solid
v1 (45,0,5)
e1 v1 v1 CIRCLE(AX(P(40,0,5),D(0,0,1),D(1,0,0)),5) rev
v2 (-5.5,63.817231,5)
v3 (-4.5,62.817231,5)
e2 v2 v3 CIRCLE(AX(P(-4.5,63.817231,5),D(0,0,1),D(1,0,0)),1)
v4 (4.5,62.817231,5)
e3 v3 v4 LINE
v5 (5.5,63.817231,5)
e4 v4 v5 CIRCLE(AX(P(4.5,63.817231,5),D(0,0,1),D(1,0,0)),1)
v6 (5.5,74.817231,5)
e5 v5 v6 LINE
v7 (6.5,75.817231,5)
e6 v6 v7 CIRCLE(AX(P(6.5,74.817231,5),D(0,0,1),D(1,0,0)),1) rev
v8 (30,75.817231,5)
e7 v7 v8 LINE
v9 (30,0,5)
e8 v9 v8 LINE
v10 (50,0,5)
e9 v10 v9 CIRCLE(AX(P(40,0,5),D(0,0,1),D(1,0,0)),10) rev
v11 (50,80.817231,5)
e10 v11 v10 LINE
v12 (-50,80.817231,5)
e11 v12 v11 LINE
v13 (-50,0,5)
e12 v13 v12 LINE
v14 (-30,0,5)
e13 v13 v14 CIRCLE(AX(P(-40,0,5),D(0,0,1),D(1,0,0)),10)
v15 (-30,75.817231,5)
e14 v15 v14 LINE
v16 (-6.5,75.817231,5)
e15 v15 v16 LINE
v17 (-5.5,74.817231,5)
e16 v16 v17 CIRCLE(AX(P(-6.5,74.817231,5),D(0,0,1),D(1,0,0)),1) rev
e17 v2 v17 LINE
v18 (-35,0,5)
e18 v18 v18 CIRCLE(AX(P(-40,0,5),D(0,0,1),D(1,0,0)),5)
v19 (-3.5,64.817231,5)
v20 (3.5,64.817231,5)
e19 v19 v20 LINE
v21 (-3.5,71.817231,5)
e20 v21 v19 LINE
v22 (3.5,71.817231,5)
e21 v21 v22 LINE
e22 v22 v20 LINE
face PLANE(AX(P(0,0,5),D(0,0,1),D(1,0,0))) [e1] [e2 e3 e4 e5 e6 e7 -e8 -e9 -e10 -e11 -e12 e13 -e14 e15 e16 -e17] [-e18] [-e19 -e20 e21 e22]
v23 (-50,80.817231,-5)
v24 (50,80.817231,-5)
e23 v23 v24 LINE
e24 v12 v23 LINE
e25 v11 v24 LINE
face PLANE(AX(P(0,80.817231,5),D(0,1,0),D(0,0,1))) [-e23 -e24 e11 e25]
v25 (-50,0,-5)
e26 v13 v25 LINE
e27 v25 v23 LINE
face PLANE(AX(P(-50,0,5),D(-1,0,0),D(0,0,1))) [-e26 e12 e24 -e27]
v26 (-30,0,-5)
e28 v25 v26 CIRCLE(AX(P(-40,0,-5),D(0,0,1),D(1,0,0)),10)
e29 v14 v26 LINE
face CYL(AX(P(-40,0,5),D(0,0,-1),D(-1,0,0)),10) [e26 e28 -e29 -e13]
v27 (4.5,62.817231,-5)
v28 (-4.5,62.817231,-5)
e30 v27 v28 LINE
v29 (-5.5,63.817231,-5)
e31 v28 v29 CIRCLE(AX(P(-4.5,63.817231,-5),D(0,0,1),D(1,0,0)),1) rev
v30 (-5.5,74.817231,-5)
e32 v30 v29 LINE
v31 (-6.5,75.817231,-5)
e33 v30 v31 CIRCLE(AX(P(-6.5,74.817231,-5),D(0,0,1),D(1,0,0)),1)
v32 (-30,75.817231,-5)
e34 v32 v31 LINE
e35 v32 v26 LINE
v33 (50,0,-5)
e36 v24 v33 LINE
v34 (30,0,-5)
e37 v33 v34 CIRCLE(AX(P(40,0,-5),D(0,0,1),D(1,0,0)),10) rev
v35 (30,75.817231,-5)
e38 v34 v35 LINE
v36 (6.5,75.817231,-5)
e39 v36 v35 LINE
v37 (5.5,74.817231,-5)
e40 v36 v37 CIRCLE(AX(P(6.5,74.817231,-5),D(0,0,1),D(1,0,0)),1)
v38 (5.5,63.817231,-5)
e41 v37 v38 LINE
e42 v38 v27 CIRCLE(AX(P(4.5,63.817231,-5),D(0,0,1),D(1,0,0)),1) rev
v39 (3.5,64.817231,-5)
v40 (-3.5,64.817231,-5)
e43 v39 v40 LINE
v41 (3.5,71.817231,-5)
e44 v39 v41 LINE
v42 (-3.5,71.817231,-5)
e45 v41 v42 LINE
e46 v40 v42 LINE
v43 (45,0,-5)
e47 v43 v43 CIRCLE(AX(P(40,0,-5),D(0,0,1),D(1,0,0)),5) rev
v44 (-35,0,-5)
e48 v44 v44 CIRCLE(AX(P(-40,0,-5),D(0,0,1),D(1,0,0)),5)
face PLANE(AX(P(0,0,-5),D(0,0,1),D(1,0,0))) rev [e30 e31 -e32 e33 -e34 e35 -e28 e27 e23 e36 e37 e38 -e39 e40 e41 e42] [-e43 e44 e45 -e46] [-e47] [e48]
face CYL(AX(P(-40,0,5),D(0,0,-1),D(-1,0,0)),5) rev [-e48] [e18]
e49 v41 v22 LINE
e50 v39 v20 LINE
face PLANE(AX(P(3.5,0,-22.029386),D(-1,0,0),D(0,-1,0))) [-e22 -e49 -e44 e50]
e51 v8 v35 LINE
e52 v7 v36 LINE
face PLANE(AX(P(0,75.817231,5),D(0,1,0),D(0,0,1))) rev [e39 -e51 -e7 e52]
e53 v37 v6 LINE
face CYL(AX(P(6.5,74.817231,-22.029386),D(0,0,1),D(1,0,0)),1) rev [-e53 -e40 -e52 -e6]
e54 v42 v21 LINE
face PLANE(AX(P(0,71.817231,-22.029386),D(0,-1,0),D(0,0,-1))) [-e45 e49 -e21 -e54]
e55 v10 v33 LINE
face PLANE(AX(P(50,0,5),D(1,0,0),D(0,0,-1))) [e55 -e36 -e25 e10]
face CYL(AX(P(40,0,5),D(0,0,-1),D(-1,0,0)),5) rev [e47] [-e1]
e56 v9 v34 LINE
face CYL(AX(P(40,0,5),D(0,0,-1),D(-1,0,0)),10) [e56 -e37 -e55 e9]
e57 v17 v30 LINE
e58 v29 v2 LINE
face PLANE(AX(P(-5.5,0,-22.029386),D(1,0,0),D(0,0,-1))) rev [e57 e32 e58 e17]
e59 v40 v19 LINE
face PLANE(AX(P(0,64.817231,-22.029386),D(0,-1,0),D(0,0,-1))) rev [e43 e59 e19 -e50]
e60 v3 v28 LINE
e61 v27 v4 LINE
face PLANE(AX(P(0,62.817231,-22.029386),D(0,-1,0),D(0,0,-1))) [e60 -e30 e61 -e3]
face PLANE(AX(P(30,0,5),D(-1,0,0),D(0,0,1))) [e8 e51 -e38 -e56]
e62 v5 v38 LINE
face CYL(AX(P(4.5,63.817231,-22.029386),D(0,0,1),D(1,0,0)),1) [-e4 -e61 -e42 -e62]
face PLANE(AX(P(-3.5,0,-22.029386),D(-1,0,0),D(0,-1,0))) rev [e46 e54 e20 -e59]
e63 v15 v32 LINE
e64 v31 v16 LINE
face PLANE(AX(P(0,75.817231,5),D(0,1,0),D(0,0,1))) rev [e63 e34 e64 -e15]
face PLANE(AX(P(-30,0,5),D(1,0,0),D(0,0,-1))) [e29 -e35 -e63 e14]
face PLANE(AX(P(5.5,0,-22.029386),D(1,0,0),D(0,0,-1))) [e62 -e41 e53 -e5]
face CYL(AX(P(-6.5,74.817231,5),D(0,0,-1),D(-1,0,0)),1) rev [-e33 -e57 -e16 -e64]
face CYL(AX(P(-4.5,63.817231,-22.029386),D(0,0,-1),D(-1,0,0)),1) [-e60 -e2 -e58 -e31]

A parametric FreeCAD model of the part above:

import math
import FreeCAD as App
import Part
import Sketcher
from FreeCAD import Vector


def edges_at(feature, points):
    """Names of the edges that pass closest to the given points."""
    edges = feature.Shape.Edges
    near = lambda p: min(range(len(edges)), key=lambda i: edges[i].distToShape(Part.Vertex(*p))[0])
    return sorted({f"Edge{near(p) + 1}" for p in points})

doc = App.newDocument("Part")
body = doc.addObject("PartDesign::Body", "Body")

# Sketch on XY plane
sketch1 = body.newObject("Sketcher::SketchObject", "Sketch")
sketch1.AttachmentSupport = (doc.getObject("XY_Plane"), [""])
sketch1.MapMode = "FlatFace"
sketch1.addGeometry([
    Part.LineSegment(Vector(-50, 80.817231, 0), Vector(-50, 0, 0)),  # 0
    Part.ArcOfCircle(Part.Circle(Vector(-40, 0, 0), Vector(0, 0, 1), 10), math.radians(180), math.radians(360)),  # 1
    Part.LineSegment(Vector(-30, 0, 0), Vector(-30, 75.817231, 0)),  # 2
    Part.LineSegment(Vector(-30, 75.817231, 0), Vector(30, 75.817231, 0)),  # 3
    Part.LineSegment(Vector(30, 75.817231, 0), Vector(30, 0, 0)),  # 4
    Part.ArcOfCircle(Part.Circle(Vector(40, 0, 0), Vector(0, 0, 1), 10), math.radians(180), math.radians(360)),  # 5
    Part.LineSegment(Vector(50, 0, 0), Vector(50, 80.817231, 0)),  # 6
    Part.LineSegment(Vector(50, 80.817231, 0), Vector(-50, 80.817231, 0)),  # 7
    Part.Circle(Vector(-40, 0, 0), Vector(0, 0, 1), 5),  # 8
    Part.Circle(Vector(40, 0, 0), Vector(0, 0, 1), 5),  # 9
], False)
sketch1.addConstraint([
    Sketcher.Constraint("Tangent", 0, 2, 1, 1),
    Sketcher.Constraint("Tangent", 1, 2, 2, 1),
    Sketcher.Constraint("Coincident", 2, 2, 3, 1),
    Sketcher.Constraint("Coincident", 3, 2, 4, 1),
    Sketcher.Constraint("Tangent", 4, 2, 5, 1),
    Sketcher.Constraint("Tangent", 5, 2, 6, 1),
    Sketcher.Constraint("Coincident", 6, 2, 7, 1),
    Sketcher.Constraint("Coincident", 7, 2, 0, 1),
    Sketcher.Constraint("Vertical", 0),
    Sketcher.Constraint("Vertical", 2),
    Sketcher.Constraint("Horizontal", 3),
    Sketcher.Constraint("Vertical", 4),
    Sketcher.Constraint("Vertical", 6),
    Sketcher.Constraint("Horizontal", 7),
    Sketcher.Constraint("Coincident", 8, 3, 1, 3),
    Sketcher.Constraint("Coincident", 9, 3, 5, 3),
    Sketcher.Constraint("Equal", 1, 5),
    Sketcher.Constraint("Equal", 8, 9),
    Sketcher.Constraint("Symmetric", 1, 3, 5, 3, -1, 1),
    Sketcher.Constraint("PointOnObject", 1, 3, -1),
    Sketcher.Constraint("Diameter", 8, 10.0),
    Sketcher.Constraint("Radius", 1, 10.0),
    Sketcher.Constraint("DistanceX", 3, 1, 3, 2, 60.0),
    Sketcher.Constraint("DistanceY", 3, 2, 6, 2, 5.0),
    Sketcher.Constraint("DistanceY", 0, 2, 0, 1, 80.817231),
])
pad1 = body.newObject("PartDesign::Pad", "Pad")
pad1.Profile = sketch1
pad1.Length = 10
pad1.Midplane = True

# Sketch on XY plane
sketch2 = body.newObject("Sketcher::SketchObject", "Sketch001")
sketch2.AttachmentSupport = (doc.getObject("XY_Plane"), [""])
sketch2.MapMode = "FlatFace"
sketch2.AttachmentOffset = App.Placement(Vector(0, 0, 5), App.Rotation())
sketch2.addGeometry([
    Part.LineSegment(Vector(-5.5, 75.817231, 0), Vector(-5.5, 62.817231, 0)),  # 0
    Part.LineSegment(Vector(-5.5, 62.817231, 0), Vector(5.5, 62.817231, 0)),  # 1
    Part.LineSegment(Vector(5.5, 62.817231, 0), Vector(5.5, 75.817231, 0)),  # 2
    Part.LineSegment(Vector(5.5, 75.817231, 0), Vector(-5.5, 75.817231, 0)),  # 3
    Part.LineSegment(Vector(3.5, 64.817231, 0), Vector(-3.5, 64.817231, 0)),  # 4
    Part.LineSegment(Vector(-3.5, 64.817231, 0), Vector(-3.5, 71.817231, 0)),  # 5
    Part.LineSegment(Vector(-3.5, 71.817231, 0), Vector(3.5, 71.817231, 0)),  # 6
    Part.LineSegment(Vector(3.5, 71.817231, 0), Vector(3.5, 64.817231, 0)),  # 7
], False)
sketch2.addConstraint([
    Sketcher.Constraint("Coincident", 0, 2, 1, 1),
    Sketcher.Constraint("Coincident", 1, 2, 2, 1),
    Sketcher.Constraint("Coincident", 2, 2, 3, 1),
    Sketcher.Constraint("Coincident", 3, 2, 0, 1),
    Sketcher.Constraint("Coincident", 4, 2, 5, 1),
    Sketcher.Constraint("Coincident", 5, 2, 6, 1),
    Sketcher.Constraint("Coincident", 6, 2, 7, 1),
    Sketcher.Constraint("Coincident", 7, 2, 4, 1),
    Sketcher.Constraint("Vertical", 0),
    Sketcher.Constraint("Horizontal", 1),
    Sketcher.Constraint("Vertical", 2),
    Sketcher.Constraint("Horizontal", 3),
    Sketcher.Constraint("Horizontal", 4),
    Sketcher.Constraint("Vertical", 5),
    Sketcher.Constraint("Horizontal", 6),
    Sketcher.Constraint("Vertical", 7),
    Sketcher.Constraint("Equal", 6, 5),
    Sketcher.Constraint("DistanceX", 1, 1, 1, 2, 11.0),
    Sketcher.Constraint("DistanceX", 4, 2, 4, 1, 7.0),
    Sketcher.Constraint("DistanceY", 0, 2, 0, 1, 13.0),
    Sketcher.Constraint("DistanceX", 0, 2, 4, 2, 2.0),
    Sketcher.Constraint("DistanceY", 0, 2, 4, 2, 2.0),
    Sketcher.Constraint("DistanceX", 0, 2, -1, 1, 5.5),
    Sketcher.Constraint("DistanceY", -1, 1, 0, 2, 62.817231),
])
pad2 = body.newObject("PartDesign::Pad", "Pad001")
pad2.Profile = sketch2
pad2.Length = 10
pad2.Reversed = True
doc.recompute()

fillet = body.newObject("PartDesign::Fillet", "Fillet")
fillet.Base = (pad2, edges_at(pad2, [
    (5.5, 62.817, 0),
    (-5.5, 62.817, 0),
    (-5.5, 75.817, 0),
    (5.5, 75.817, 0),
]))
fillet.Radius = 1

doc.recompute()
